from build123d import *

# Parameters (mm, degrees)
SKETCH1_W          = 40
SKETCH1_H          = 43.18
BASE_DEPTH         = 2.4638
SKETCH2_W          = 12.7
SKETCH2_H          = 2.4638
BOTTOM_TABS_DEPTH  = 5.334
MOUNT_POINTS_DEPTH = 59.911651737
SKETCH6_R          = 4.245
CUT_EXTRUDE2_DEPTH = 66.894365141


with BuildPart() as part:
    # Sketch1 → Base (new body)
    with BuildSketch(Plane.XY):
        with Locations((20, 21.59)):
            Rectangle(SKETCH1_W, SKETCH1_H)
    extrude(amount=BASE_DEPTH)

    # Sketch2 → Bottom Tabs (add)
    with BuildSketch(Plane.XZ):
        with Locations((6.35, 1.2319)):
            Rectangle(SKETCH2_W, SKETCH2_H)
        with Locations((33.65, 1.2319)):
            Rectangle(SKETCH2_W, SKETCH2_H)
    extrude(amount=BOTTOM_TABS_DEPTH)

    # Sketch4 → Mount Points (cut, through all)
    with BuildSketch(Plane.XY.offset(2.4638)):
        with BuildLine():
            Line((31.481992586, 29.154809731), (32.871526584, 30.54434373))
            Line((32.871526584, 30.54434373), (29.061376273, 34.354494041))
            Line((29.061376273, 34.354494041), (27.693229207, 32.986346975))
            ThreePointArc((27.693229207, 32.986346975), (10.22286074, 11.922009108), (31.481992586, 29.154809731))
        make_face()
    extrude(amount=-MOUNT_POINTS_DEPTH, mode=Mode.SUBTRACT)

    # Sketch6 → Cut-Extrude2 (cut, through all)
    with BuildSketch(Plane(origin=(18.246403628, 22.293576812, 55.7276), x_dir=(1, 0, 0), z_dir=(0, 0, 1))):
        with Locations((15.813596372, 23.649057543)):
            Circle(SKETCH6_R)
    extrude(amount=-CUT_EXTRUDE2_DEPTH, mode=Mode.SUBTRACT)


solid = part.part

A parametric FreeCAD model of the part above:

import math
import FreeCAD as App
import Part
import Sketcher
Q = App.Units.Quantity


def add_polygon(sketch, points):
    """Adds a closed chain of lines whose ends are joined by coincident constraints."""
    first, n = sketch.GeometryCount, len(points)
    for a, b in zip(points, points[1:] + points[:1]):
        sketch.addGeometry(Part.LineSegment(App.Vector(*a, 0), App.Vector(*b, 0)), False)
    for i in range(n):
        sketch.addConstraint(Sketcher.Constraint("Coincident", first + i, 2, first + (i + 1) % n, 1))

doc = App.newDocument("Part")
params = doc.addObject("Spreadsheet::Sheet", "Params")
for row, (alias, value) in enumerate([
    ("sketch1_height", "1.7 in"),
    ("pad1_length", "0.097 in"),
    ("sketch2_width", "0.5 in"),
    ("sketch2_height", "0.097 in"),
    ("pad2_length", "0.21 in"),
], start=1):
    params.set(f"A{row}", alias)
    params.set(f"B{row}", "=" + value)
    params.setAlias(f"B{row}", alias)

body = doc.addObject("PartDesign::Body", "Body")

sketch1 = body.newObject("Sketcher::SketchObject", "Sketch")
sketch1.AttachmentSupport = (doc.getObject("XY_Plane"), [""])
sketch1.MapMode = "FlatFace"
add_polygon(sketch1, [(0, 43), (0, 0), (40, 0), (40, 43)])
sketch1.addConstraint(Sketcher.Constraint("Vertical", 0))
sketch1.addConstraint(Sketcher.Constraint("Horizontal", 1))
sketch1.addConstraint(Sketcher.Constraint("Vertical", 2))
sketch1.addConstraint(Sketcher.Constraint("Horizontal", 3))
sketch1.addConstraint(Sketcher.Constraint("Coincident", 0, 2, -1, 1))
sketch1.addConstraint(Sketcher.Constraint("DistanceY", 0, 2, 0, 1, Q("1.7 in")))
sketch1.addConstraint(Sketcher.Constraint("DistanceX", 1, 1, 1, 2, Q("40 mm")))
sketch1.setExpression("Constraints[9]", "Params.sketch1_height")
pad1 = body.newObject("PartDesign::Pad", "Pad")
pad1.Profile = sketch1
pad1.setExpression("Length", "Params.pad1_length")

sketch2 = body.newObject("Sketcher::SketchObject", "Sketch001")
sketch2.AttachmentSupport = (doc.getObject("XZ_Plane"), [""])
sketch2.MapMode = "FlatFace"
add_polygon(sketch2, [(0, 2.5), (0, 0), (12.7, 0), (12.7, 2.5)])
add_polygon(sketch2, [(27.3, 2.5), (27.3, 0), (40, 0), (40, 2.5)])
sketch2.addConstraint(Sketcher.Constraint("Vertical", 0))
sketch2.addConstraint(Sketcher.Constraint("Horizontal", 1))
sketch2.addConstraint(Sketcher.Constraint("Vertical", 2))
sketch2.addConstraint(Sketcher.Constraint("Horizontal", 3))
sketch2.addConstraint(Sketcher.Constraint("Vertical", 4))
sketch2.addConstraint(Sketcher.Constraint("Horizontal", 5))
sketch2.addConstraint(Sketcher.Constraint("Vertical", 6))
sketch2.addConstraint(Sketcher.Constraint("Horizontal", 7))
sketch2.addConstraint(Sketcher.Constraint("Coincident", 0, 2, -1, 1))
sketch2.addConstraint(Sketcher.Constraint("PointOnObject", 4, 2, -1))
sketch2.addConstraint(Sketcher.Constraint("Horizontal", 3, 2, 6, 2))
sketch2.addConstraint(Sketcher.Constraint("Equal", 3, 5))
sketch2.addConstraint(Sketcher.Constraint("DistanceX", 1, 1, 1, 2, Q("0.5 in")))
sketch2.addConstraint(Sketcher.Constraint("DistanceY", 0, 2, 0, 1, Q("0.097 in")))
sketch2.addConstraint(Sketcher.Constraint("DistanceX", -1, 1, 4, 2, Q("27.3 mm")))
sketch2.setExpression("Constraints[20]", "Params.sketch2_width")
sketch2.setExpression("Constraints[21]", "Params.sketch2_height")
pad2 = body.newObject("PartDesign::Pad", "Pad001")
pad2.Profile = sketch2
pad2.setExpression("Length", "Params.pad2_length")

sketch3 = body.newObject("Sketcher::SketchObject", "Sketch002")
sketch3.AttachmentSupport = (doc.getObject("XY_Plane"), [""])
sketch3.MapMode = "FlatFace"
sketch3.AttachmentOffset = App.Placement(App.Vector(0, 0, 0.097 * 25.4), App.Rotation())
sketch3.addGeometry(Part.LineSegment(App.Vector(31.5, 29.2, 0), App.Vector(32.9, 30.5, 0)), False)
sketch3.addGeometry(Part.LineSegment(App.Vector(32.9, 30.5, 0), App.Vector(29.1, 34.4, 0)), False)
sketch3.addGeometry(Part.LineSegment(App.Vector(29.1, 34.4, 0), App.Vector(27.7, 33, 0)), False)
sketch3.addGeometry(Part.ArcOfCircle(Part.Circle(App.Vector(20, 21.6, 0), App.Vector(0, 0, 1), 13.8), math.radians(56), math.radians(393)), False)
sketch3.addConstraint(Sketcher.Constraint("Coincident", 0, 2, 1, 1))
sketch3.addConstraint(Sketcher.Constraint("Coincident", 1, 2, 2, 1))
sketch3.addConstraint(Sketcher.Constraint("Coincident", 2, 2, 3, 1))
sketch3.addConstraint(Sketcher.Constraint("Coincident", 3, 2, 0, 1))
sketch3.addConstraint(Sketcher.Constraint("Perpendicular", 0, 1))
sketch3.addConstraint(Sketcher.Constraint("Perpendicular", 1, 2))
sketch3.addConstraint(Sketcher.Constraint("Angle", 0, Q("45 deg")))
sketch3.addConstraint(Sketcher.Constraint("DistanceY", -1, 1, 3, 3, Q("0.85 in")))
sketch3.addConstraint(Sketcher.Constraint("Radius", 3, Q("13.75 mm")))
sketch3.addConstraint(Sketcher.Constraint("DistanceX", 1, 2, 3, 2, Q("0.0952999 in")))
sketch3.addConstraint(Sketcher.Constraint("DistanceX", -1, 1, 3, 3, Q("20 mm")))
sketch3.addConstraint(Sketcher.Constraint("DistanceX", -1, 1, 2, 2, Q("27.693229 mm")))
sketch3.addConstraint(Sketcher.Constraint("DistanceY", -1, 1, 3, 2, Q("29.15481 mm")))
pocket1 = body.newObject("PartDesign::Pocket", "Pocket")
pocket1.Profile = sketch3
pocket1.Type = "ThroughAll"

sketch4 = body.newObject("Sketcher::SketchObject", "Sketch003")
sketch4.AttachmentSupport = (doc.getObject("XY_Plane"), [""])
sketch4.MapMode = "FlatFace"
sketch4.AttachmentOffset = App.Placement(App.Vector(0, 0, 2.194 * 25.4), App.Rotation())
sketch4.addGeometry(Part.Circle(App.Vector(34.1, 45.9, 0), App.Vector(0, 0, 1), 4.2), False)
sketch4.addConstraint(Sketcher.Constraint("Diameter", 0, Q("8.49 mm")))
sketch4.addConstraint(Sketcher.Constraint("DistanceX", -1, 1, 0, 3, Q("34.06 mm")))
sketch4.addConstraint(Sketcher.Constraint("DistanceY", -1, 1, 0, 3, Q("45.942634 mm")))
pocket2 = body.newObject("PartDesign::Pocket", "Pocket001")
pocket2.Profile = sketch4
pocket2.Type = "ThroughAll"

doc.recompute()
